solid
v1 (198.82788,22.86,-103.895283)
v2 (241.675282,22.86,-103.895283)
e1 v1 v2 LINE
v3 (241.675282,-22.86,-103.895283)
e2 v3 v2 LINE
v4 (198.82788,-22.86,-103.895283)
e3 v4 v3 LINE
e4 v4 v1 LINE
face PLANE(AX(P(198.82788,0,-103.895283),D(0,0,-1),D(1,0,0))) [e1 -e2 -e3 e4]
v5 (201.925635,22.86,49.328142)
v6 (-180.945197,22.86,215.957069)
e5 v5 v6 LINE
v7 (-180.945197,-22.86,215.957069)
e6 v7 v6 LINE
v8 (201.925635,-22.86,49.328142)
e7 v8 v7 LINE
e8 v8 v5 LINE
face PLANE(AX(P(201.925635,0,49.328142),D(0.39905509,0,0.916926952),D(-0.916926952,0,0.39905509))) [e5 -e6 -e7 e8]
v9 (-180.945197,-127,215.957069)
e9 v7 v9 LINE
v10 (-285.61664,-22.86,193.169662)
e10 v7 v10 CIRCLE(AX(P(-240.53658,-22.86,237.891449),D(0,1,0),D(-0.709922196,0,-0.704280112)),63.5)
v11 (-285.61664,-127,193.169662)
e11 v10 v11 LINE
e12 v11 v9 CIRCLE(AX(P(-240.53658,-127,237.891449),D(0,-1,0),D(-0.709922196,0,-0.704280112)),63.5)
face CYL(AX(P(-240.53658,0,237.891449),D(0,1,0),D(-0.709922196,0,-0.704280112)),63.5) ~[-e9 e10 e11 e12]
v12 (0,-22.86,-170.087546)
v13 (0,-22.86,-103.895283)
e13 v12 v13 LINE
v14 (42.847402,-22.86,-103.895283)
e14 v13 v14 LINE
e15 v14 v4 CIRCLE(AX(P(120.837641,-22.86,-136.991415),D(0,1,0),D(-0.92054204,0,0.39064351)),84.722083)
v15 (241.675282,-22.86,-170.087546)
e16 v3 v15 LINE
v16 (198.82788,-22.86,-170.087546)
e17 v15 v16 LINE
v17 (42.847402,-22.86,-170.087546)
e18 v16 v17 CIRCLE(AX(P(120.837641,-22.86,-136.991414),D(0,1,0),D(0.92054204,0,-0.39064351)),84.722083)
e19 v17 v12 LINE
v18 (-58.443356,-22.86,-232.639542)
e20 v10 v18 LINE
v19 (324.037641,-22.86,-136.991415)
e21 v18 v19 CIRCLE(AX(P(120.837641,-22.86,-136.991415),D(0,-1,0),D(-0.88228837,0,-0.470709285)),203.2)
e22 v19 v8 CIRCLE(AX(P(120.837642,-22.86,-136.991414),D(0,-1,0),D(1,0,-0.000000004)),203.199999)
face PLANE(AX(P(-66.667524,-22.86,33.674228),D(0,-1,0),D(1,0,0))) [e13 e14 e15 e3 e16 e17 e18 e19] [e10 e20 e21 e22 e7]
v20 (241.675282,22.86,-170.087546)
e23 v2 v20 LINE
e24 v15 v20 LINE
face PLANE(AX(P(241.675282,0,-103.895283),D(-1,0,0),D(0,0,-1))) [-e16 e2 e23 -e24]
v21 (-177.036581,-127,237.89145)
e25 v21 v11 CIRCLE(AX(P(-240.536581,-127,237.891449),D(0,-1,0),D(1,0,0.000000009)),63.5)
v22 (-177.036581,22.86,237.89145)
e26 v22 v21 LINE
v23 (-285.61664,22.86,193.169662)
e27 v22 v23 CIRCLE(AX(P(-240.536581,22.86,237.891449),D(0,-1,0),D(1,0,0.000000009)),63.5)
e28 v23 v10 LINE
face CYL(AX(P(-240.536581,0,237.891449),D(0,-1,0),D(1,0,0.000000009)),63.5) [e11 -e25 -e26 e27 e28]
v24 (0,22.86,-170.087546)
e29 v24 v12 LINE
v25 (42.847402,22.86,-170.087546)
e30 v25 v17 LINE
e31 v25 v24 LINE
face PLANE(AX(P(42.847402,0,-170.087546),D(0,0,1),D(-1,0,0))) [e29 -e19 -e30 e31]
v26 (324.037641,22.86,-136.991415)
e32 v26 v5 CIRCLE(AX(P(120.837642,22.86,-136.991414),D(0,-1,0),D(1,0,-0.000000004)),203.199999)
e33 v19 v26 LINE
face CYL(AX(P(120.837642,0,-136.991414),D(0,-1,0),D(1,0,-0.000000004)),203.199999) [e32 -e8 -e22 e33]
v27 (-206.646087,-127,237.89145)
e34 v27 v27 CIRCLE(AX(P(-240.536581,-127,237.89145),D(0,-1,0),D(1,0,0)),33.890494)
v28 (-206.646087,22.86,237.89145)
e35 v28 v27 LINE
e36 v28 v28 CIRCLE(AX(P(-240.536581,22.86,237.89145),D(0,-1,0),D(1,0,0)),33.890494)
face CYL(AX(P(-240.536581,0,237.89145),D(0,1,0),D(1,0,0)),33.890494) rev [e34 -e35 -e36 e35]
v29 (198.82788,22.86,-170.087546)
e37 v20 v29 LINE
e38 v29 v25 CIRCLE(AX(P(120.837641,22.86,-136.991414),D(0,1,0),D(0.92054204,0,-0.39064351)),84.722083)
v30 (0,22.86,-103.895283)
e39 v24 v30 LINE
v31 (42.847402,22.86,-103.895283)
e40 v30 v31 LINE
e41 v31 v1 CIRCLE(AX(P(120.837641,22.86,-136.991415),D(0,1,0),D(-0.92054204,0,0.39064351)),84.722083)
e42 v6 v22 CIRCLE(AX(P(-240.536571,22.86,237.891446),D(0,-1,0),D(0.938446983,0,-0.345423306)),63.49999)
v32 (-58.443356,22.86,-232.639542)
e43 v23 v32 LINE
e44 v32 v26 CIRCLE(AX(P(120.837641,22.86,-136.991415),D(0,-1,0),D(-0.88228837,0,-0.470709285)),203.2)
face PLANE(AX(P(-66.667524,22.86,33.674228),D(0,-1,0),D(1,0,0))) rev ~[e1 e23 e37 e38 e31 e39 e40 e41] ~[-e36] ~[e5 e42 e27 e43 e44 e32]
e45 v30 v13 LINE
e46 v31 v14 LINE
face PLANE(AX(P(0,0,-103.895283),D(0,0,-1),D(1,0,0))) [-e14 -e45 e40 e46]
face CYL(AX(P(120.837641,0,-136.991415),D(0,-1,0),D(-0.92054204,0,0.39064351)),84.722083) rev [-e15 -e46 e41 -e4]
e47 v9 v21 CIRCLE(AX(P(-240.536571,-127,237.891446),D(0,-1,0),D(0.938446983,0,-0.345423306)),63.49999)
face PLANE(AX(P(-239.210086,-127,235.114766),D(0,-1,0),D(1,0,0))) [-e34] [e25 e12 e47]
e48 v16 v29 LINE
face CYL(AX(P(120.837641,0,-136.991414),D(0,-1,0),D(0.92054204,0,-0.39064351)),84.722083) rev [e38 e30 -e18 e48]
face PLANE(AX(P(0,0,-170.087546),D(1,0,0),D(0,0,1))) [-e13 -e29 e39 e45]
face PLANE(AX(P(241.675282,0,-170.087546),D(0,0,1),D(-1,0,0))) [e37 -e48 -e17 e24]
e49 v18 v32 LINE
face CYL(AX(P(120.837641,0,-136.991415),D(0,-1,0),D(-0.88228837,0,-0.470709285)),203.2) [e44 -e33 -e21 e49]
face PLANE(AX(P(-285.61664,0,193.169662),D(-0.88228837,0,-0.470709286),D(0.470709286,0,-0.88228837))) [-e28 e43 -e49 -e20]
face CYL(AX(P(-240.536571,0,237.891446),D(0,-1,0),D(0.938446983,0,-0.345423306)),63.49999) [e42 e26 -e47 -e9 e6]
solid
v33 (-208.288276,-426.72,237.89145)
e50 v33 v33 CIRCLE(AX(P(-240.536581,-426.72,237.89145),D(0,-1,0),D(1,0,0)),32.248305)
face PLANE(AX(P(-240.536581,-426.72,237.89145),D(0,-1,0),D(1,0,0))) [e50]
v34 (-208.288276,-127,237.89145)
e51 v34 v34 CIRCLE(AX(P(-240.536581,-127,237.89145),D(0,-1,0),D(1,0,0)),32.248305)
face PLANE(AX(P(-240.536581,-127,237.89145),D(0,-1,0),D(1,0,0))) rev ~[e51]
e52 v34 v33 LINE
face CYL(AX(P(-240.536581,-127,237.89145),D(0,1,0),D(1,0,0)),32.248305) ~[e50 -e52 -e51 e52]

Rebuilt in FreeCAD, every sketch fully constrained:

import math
import FreeCAD as App
import Part
import Sketcher
Q = App.Units.Quantity

doc = App.newDocument("Part")
body = doc.addObject("PartDesign::Body", "Body")

sketch1 = body.newObject("Sketcher::SketchObject", "Sketch")
sketch1.AttachmentSupport = (doc.getObject("XZ_Plane"), [""])
sketch1.MapMode = "FlatFace"
sketch1.addGeometry([
    Part.LineSegment(App.Vector(202, 49, 0), App.Vector(-181, 216, 0)),
    Part.ArcOfCircle(Part.Circle(App.Vector(-241, 238, 0), App.Vector(0, 0, 1), 63), math.radians(-20), math.radians(0)),
    Part.ArcOfCircle(Part.Circle(App.Vector(-241, 238, 0), App.Vector(0, 0, 1), 63), math.radians(0), math.radians(225)),
    Part.LineSegment(App.Vector(-286, 193, 0), App.Vector(-58, -233, 0)),
    Part.ArcOfCircle(Part.Circle(App.Vector(121, -137, 0), App.Vector(0, 0, 1), 203), math.radians(-152), math.radians(0)),
    Part.ArcOfCircle(Part.Circle(App.Vector(121, -137, 0), App.Vector(0, 0, 1), 203), math.radians(0), math.radians(66)),
    Part.ArcOfCircle(Part.Circle(App.Vector(121, -137, 0), App.Vector(0, 0, 1), 85), math.radians(-157), math.radians(-23)),
    Part.LineSegment(App.Vector(43, -170, 0), App.Vector(0, -170, 0)),
    Part.LineSegment(App.Vector(0, -170, 0), App.Vector(0, -104, 0)),
    Part.LineSegment(App.Vector(0, -104, 0), App.Vector(43, -104, 0)),
    Part.ArcOfCircle(Part.Circle(App.Vector(121, -137, 0), App.Vector(0, 0, 1), 85), math.radians(23), math.radians(157)),
    Part.LineSegment(App.Vector(199, -104, 0), App.Vector(242, -104, 0)),
    Part.LineSegment(App.Vector(242, -104, 0), App.Vector(242, -170, 0)),
    Part.LineSegment(App.Vector(242, -170, 0), App.Vector(199, -170, 0)),
    Part.Circle(App.Vector(-241, 238, 0), App.Vector(0, 0, 1), 34),
], False)
sketch1.addConstraint([
    Sketcher.Constraint("Coincident", 0, 2, 1, 1),
    Sketcher.Constraint("Tangent", 1, 2, 2, 1),
    Sketcher.Constraint("Coincident", 2, 2, 3, 1),
    Sketcher.Constraint("Tangent", 3, 2, 4, 1),
    Sketcher.Constraint("Tangent", 4, 2, 5, 1),
    Sketcher.Constraint("Tangent", 5, 2, 0, 1),
    Sketcher.Constraint("Coincident", 6, 1, 7, 1),
    Sketcher.Constraint("Coincident", 7, 2, 8, 1),
    Sketcher.Constraint("Coincident", 8, 2, 9, 1),
    Sketcher.Constraint("Coincident", 9, 2, 10, 2),
    Sketcher.Constraint("Coincident", 10, 1, 11, 1),
    Sketcher.Constraint("Coincident", 11, 2, 12, 1),
    Sketcher.Constraint("Coincident", 12, 2, 13, 1),
    Sketcher.Constraint("Coincident", 13, 2, 6, 2),
    Sketcher.Constraint("Horizontal", 7),
    Sketcher.Constraint("Vertical", 8),
    Sketcher.Constraint("Horizontal", 9),
    Sketcher.Constraint("Horizontal", 11),
    Sketcher.Constraint("Vertical", 12),
    Sketcher.Constraint("Horizontal", 13),
    Sketcher.Constraint("Coincident", 6, 3, 4, 3),
    Sketcher.Constraint("Coincident", 10, 3, 4, 3),
    Sketcher.Constraint("Coincident", 14, 3, 2, 3),
    Sketcher.Constraint("Equal", 4, 5),
    Sketcher.Constraint("Equal", 6, 10),
    Sketcher.Constraint("PointOnObject", 7, 2, -2),
    Sketcher.Constraint("Horizontal", 14, 3, 1, 2),
    Sketcher.Constraint("Horizontal", 10, 3, 4, 2),
    Sketcher.Constraint("Horizontal", 9, 2, 10, 1),
    Sketcher.Constraint("Horizontal", 7, 2, 12, 2),
    Sketcher.Constraint("Vertical", 6, 1, 9, 2),
    Sketcher.Constraint("Equal", 9, 11),
    Sketcher.Constraint("Radius", 4, Q("8 in")),
    Sketcher.Constraint("Radius", 2, Q("2.5 in")),
    Sketcher.Constraint("Radius", 1, 63.49999),
    Sketcher.Constraint("Diameter", 14, 67.780988),
    Sketcher.Constraint("Radius", 6, 84.722083),
    Sketcher.Constraint("DistanceY", 2, 2, 1, 3, Q("1.7607001 in")),
    Sketcher.Constraint("DistanceX", -1, 1, 6, 1, 42.847402),
    Sketcher.Constraint("DistanceY", 8, 1, 8, 2, 66.192263),
    Sketcher.Constraint("DistanceX", 1, 3, -1, 1, 240.536571),
    Sketcher.Constraint("DistanceY", -1, 1, 2, 3, 237.891449),
    Sketcher.Constraint("DistanceY", -1, 1, 0, 2, 215.957069),
    Sketcher.Constraint("DistanceY", 3, 2, -1, 1, 232.639542),
])
pad1 = body.newObject("PartDesign::Pad", "Pad")
pad1.Profile = sketch1
pad1.Length = Q("1.8 in")
pad1.Midplane = True

sketch2 = body.newObject("Sketcher::SketchObject", "Sketch001")
sketch2.AttachmentSupport = (doc.getObject("XZ_Plane"), [""])
sketch2.MapMode = "FlatFace"
sketch2.addGeometry([
    Part.ArcOfCircle(Part.Circle(App.Vector(-241, 238, 0), App.Vector(0, 0, 1), 63), math.radians(-20), math.radians(0)),
    Part.ArcOfCircle(Part.Circle(App.Vector(-241, 238, 0), App.Vector(0, 0, 1), 63), math.radians(0), math.radians(225)),
    Part.ArcOfCircle(Part.Circle(App.Vector(-241, 238, 0), App.Vector(0, 0, 1), 64), math.radians(-135), math.radians(-20)),
    Part.Circle(App.Vector(-241, 238, 0), App.Vector(0, 0, 1), 34),
], False)
sketch2.addConstraint([
    Sketcher.Constraint("Tangent", 0, 2, 1, 1),
    Sketcher.Constraint("Tangent", 1, 2, 2, 1),
    Sketcher.Constraint("Tangent", 2, 2, 0, 1),
    Sketcher.Constraint("Coincident", 3, 3, 1, 3),
    Sketcher.Constraint("Horizontal", 3, 3, 0, 2),
    Sketcher.Constraint("Radius", 1, Q("2.5 in")),
    Sketcher.Constraint("Diameter", 3, 67.780988),
    Sketcher.Constraint("DistanceY", 1, 2, 0, 3, Q("1.7607001 in")),
    Sketcher.Constraint("DistanceX", 0, 3, -1, 1, 240.536571),
    Sketcher.Constraint("DistanceY", -1, 1, 1, 3, 237.891449),
    Sketcher.Constraint("DistanceY", -1, 1, 2, 2, 215.957069),
])
pad2 = body.newObject("PartDesign::Pad", "Pad001")
pad2.Profile = sketch2
pad2.Length = Q("5 in")
body2 = doc.addObject("PartDesign::Body", "Body001")

sketch3 = body2.newObject("Sketcher::SketchObject", "Sketch002")
sketch3.AttachmentSupport = (doc.getObject("XZ_Plane001"), [""])
sketch3.MapMode = "FlatFace"
sketch3.AttachmentOffset = App.Placement(App.Vector(0, 0, 5 * 25.4), App.Rotation())
sketch3.addGeometry(Part.Circle(App.Vector(-241, 238, 0), App.Vector(0, 0, 1), 32), False)
sketch3.addConstraint([
    Sketcher.Constraint("Diameter", 0, 64.49661),
    Sketcher.Constraint("DistanceX", 0, 3, -1, 1, 240.536581),
    Sketcher.Constraint("DistanceY", -1, 1, 0, 3, 237.89145),
])
pad3 = body2.newObject("PartDesign::Pad", "Pad002")
pad3.Profile = sketch3
pad3.Length = Q("11.8 in")

doc.recompute()
